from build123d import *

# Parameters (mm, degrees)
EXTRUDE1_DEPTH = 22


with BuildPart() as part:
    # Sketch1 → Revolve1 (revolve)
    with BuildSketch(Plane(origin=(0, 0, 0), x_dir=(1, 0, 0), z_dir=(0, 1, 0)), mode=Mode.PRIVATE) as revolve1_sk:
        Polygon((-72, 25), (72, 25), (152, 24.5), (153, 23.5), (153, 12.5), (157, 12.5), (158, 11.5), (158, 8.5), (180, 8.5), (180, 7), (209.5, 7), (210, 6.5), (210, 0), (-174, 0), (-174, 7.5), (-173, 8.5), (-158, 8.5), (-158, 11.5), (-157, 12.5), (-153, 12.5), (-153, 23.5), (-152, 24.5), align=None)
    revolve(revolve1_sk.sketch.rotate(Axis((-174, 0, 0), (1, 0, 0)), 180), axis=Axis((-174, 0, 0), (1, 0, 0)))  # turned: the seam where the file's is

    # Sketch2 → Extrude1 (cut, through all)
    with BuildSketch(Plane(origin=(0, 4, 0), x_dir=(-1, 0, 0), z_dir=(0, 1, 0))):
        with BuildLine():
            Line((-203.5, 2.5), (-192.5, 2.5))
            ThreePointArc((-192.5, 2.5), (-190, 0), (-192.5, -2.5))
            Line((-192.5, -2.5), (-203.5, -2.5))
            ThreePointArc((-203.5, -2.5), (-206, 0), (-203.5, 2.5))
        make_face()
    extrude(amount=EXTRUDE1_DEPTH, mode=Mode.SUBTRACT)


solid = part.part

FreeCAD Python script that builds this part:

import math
import FreeCAD as App
import Part
import Sketcher
Q = App.Units.Quantity

doc = App.newDocument("Part")
body = doc.addObject("PartDesign::Body", "Body")

# Sketch on XZ plane
sketch1 = doc.addObject("Sketcher::SketchObject", "Sketch")
body.addObject(sketch1)
sketch1.AttachmentSupport = (doc.XZ_Plane, [""])
sketch1.MapMode = "FlatFace"
sketch1.addGeometry(Part.LineSegment(App.Vector(72, -25, 0), App.Vector(-72, -25, 0)), False)
sketch1.addGeometry(Part.LineSegment(App.Vector(-72, -25, 0), App.Vector(-152, -24.5, 0)), False)
sketch1.addGeometry(Part.LineSegment(App.Vector(-152, -24.5, 0), App.Vector(-153, -23.5, 0)), False)
sketch1.addGeometry(Part.LineSegment(App.Vector(-153, -23.5, 0), App.Vector(-153, -12.5, 0)), False)
sketch1.addGeometry(Part.LineSegment(App.Vector(-153, -12.5, 0), App.Vector(-157, -12.5, 0)), False)
sketch1.addGeometry(Part.LineSegment(App.Vector(-157, -12.5, 0), App.Vector(-158, -11.5, 0)), False)
sketch1.addGeometry(Part.LineSegment(App.Vector(-158, -11.5, 0), App.Vector(-158, -8.5, 0)), False)
sketch1.addGeometry(Part.LineSegment(App.Vector(-158, -8.5, 0), App.Vector(-173, -8.5, 0)), False)
sketch1.addGeometry(Part.LineSegment(App.Vector(-173, -8.5, 0), App.Vector(-174, -7.5, 0)), False)
sketch1.addGeometry(Part.LineSegment(App.Vector(-174, -7.5, 0), App.Vector(-174, 0, 0)), False)
sketch1.addGeometry(Part.LineSegment(App.Vector(-174, 0, 0), App.Vector(210, 0, 0)), False)
sketch1.addGeometry(Part.LineSegment(App.Vector(210, 0, 0), App.Vector(210, -6.5, 0)), False)
sketch1.addGeometry(Part.LineSegment(App.Vector(210, -6.5, 0), App.Vector(209.5, -7, 0)), False)
sketch1.addGeometry(Part.LineSegment(App.Vector(209.5, -7, 0), App.Vector(180, -7, 0)), False)
sketch1.addGeometry(Part.LineSegment(App.Vector(180, -7, 0), App.Vector(180, -8.5, 0)), False)
sketch1.addGeometry(Part.LineSegment(App.Vector(180, -8.5, 0), App.Vector(158, -8.5, 0)), False)
sketch1.addGeometry(Part.LineSegment(App.Vector(158, -8.5, 0), App.Vector(158, -11.5, 0)), False)
sketch1.addGeometry(Part.LineSegment(App.Vector(158, -11.5, 0), App.Vector(157, -12.5, 0)), False)
sketch1.addGeometry(Part.LineSegment(App.Vector(157, -12.5, 0), App.Vector(153, -12.5, 0)), False)
sketch1.addGeometry(Part.LineSegment(App.Vector(153, -12.5, 0), App.Vector(153, -23.5, 0)), False)
sketch1.addGeometry(Part.LineSegment(App.Vector(153, -23.5, 0), App.Vector(152, -24.5, 0)), False)
sketch1.addGeometry(Part.LineSegment(App.Vector(152, -24.5, 0), App.Vector(72, -25, 0)), False)
sketch1.addConstraint(Sketcher.Constraint("Coincident", 0, 2, 1, 1))
sketch1.addConstraint(Sketcher.Constraint("Coincident", 1, 2, 2, 1))
sketch1.addConstraint(Sketcher.Constraint("Coincident", 2, 2, 3, 1))
sketch1.addConstraint(Sketcher.Constraint("Coincident", 3, 2, 4, 1))
sketch1.addConstraint(Sketcher.Constraint("Coincident", 4, 2, 5, 1))
sketch1.addConstraint(Sketcher.Constraint("Coincident", 5, 2, 6, 1))
sketch1.addConstraint(Sketcher.Constraint("Coincident", 6, 2, 7, 1))
sketch1.addConstraint(Sketcher.Constraint("Coincident", 7, 2, 8, 1))
sketch1.addConstraint(Sketcher.Constraint("Coincident", 8, 2, 9, 1))
sketch1.addConstraint(Sketcher.Constraint("Coincident", 9, 2, 10, 1))
sketch1.addConstraint(Sketcher.Constraint("Coincident", 10, 2, 11, 1))
sketch1.addConstraint(Sketcher.Constraint("Coincident", 11, 2, 12, 1))
sketch1.addConstraint(Sketcher.Constraint("Coincident", 12, 2, 13, 1))
sketch1.addConstraint(Sketcher.Constraint("Coincident", 13, 2, 14, 1))
sketch1.addConstraint(Sketcher.Constraint("Coincident", 14, 2, 15, 1))
sketch1.addConstraint(Sketcher.Constraint("Coincident", 15, 2, 16, 1))
sketch1.addConstraint(Sketcher.Constraint("Coincident", 16, 2, 17, 1))
sketch1.addConstraint(Sketcher.Constraint("Coincident", 17, 2, 18, 1))
sketch1.addConstraint(Sketcher.Constraint("Coincident", 18, 2, 19, 1))
sketch1.addConstraint(Sketcher.Constraint("Coincident", 19, 2, 20, 1))
sketch1.addConstraint(Sketcher.Constraint("Coincident", 20, 2, 21, 1))
sketch1.addConstraint(Sketcher.Constraint("Coincident", 21, 2, 0, 1))
sketch1.addConstraint(Sketcher.Constraint("Horizontal", 0))
sketch1.addConstraint(Sketcher.Constraint("Vertical", 3))
sketch1.addConstraint(Sketcher.Constraint("Horizontal", 4))
sketch1.addConstraint(Sketcher.Constraint("Vertical", 6))
sketch1.addConstraint(Sketcher.Constraint("Horizontal", 7))
sketch1.addConstraint(Sketcher.Constraint("Vertical", 9))
sketch1.addConstraint(Sketcher.Constraint("Horizontal", 10))
sketch1.addConstraint(Sketcher.Constraint("Vertical", 11))
sketch1.addConstraint(Sketcher.Constraint("Horizontal", 13))
sketch1.addConstraint(Sketcher.Constraint("Vertical", 14))
sketch1.addConstraint(Sketcher.Constraint("Horizontal", 15))
sketch1.addConstraint(Sketcher.Constraint("Vertical", 16))
sketch1.addConstraint(Sketcher.Constraint("Horizontal", 18))
sketch1.addConstraint(Sketcher.Constraint("Vertical", 19))
sketch1.addConstraint(Sketcher.Constraint("Symmetric", 6, 2, 15, 2, -2))
sketch1.addConstraint(Sketcher.Constraint("Symmetric", 4, 2, 17, 2, -2))
sketch1.addConstraint(Sketcher.Constraint("Symmetric", 2, 2, 19, 2, -2))
sketch1.addConstraint(Sketcher.Constraint("Symmetric", 1, 2, 20, 2, -2))
sketch1.addConstraint(Sketcher.Constraint("PointOnObject", 9, 2, -1))
sketch1.addConstraint(Sketcher.Constraint("Parallel", 2, 5))
sketch1.addConstraint(Sketcher.Constraint("Parallel", 5, 8))
sketch1.addConstraint(Sketcher.Constraint("Perpendicular", 8, 12))
sketch1.addConstraint(Sketcher.Constraint("Parallel", 12, 17))
sketch1.addConstraint(Sketcher.Constraint("Parallel", 17, 20))
sketch1.addConstraint(Sketcher.Constraint("Equal", 2, 5))
sketch1.addConstraint(Sketcher.Constraint("Equal", 5, 8))
sketch1.addConstraint(Sketcher.Constraint("Equal", 1, 21))
sketch1.addConstraint(Sketcher.Constraint("DistanceX", 0, 2, 0, 1, Q("144 mm")))
sketch1.addConstraint(Sketcher.Constraint("DistanceX", 4, 2, 4, 1, Q("4 mm")))
sketch1.addConstraint(Sketcher.Constraint("DistanceX", 7, 2, 7, 1, Q("15 mm")))
sketch1.addConstraint(Sketcher.Constraint("DistanceX", 10, 1, 10, 2, Q("384 mm")))
sketch1.addConstraint(Sketcher.Constraint("DistanceX", 15, 2, 15, 1, Q("22 mm")))
sketch1.addConstraint(Sketcher.Constraint("DistanceY", 3, 1, 3, 2, Q("11 mm")))
sketch1.addConstraint(Sketcher.Constraint("DistanceY", 6, 1, 6, 2, Q("3 mm")))
sketch1.addConstraint(Sketcher.Constraint("DistanceX", 13, 2, 13, 1, Q("29.5 mm")))
sketch1.addConstraint(Sketcher.Constraint("DistanceY", 9, 1, 9, 2, Q("7.5 mm")))
sketch1.addConstraint(Sketcher.Constraint("DistanceY", 11, 2, 11, 1, Q("6.5 mm")))
sketch1.addConstraint(Sketcher.Constraint("DistanceY", 14, 2, 14, 1, Q("1.5 mm")))
sketch1.addConstraint(Sketcher.Constraint("DistanceY", 0, 2, -1, 1, Q("25 mm")))
sketch1.addConstraint(Sketcher.Constraint("DistanceX", 1, 2, -1, 1, Q("152 mm")))
revolution = doc.addObject("PartDesign::Revolution", "Revolution")
body.addObject(revolution)
revolution.Profile = sketch1
revolution.ReferenceAxis = (sketch1, ["H_Axis"])
revolution.Angle = 360

# Sketch on XZ plane
sketch2 = doc.addObject("Sketcher::SketchObject", "Sketch001")
body.addObject(sketch2)
sketch2.AttachmentSupport = (doc.XZ_Plane, [""])
sketch2.MapMode = "FlatFace"
sketch2.AttachmentOffset = App.Placement(App.Vector(0, 0, -4), App.Rotation())
sketch2.addGeometry(Part.LineSegment(App.Vector(192.5, 2.5, 0), App.Vector(203.5, 2.5, 0)), False)
sketch2.addGeometry(Part.ArcOfCircle(Part.Circle(App.Vector(203.5, 0, 0), App.Vector(0, 0, 1), 2.5), math.radians(-90), math.radians(90)), False)
sketch2.addGeometry(Part.LineSegment(App.Vector(203.5, -2.5, 0), App.Vector(192.5, -2.5, 0)), False)
sketch2.addGeometry(Part.ArcOfCircle(Part.Circle(App.Vector(192.5, 0, 0), App.Vector(0, 0, 1), 2.5), math.radians(90), math.radians(270)), False)
sketch2.addConstraint(Sketcher.Constraint("Tangent", 0, 2, 1, 2))
sketch2.addConstraint(Sketcher.Constraint("Tangent", 1, 1, 2, 1))
sketch2.addConstraint(Sketcher.Constraint("Tangent", 2, 2, 3, 2))
sketch2.addConstraint(Sketcher.Constraint("Tangent", 3, 1, 0, 1))
sketch2.addConstraint(Sketcher.Constraint("Horizontal", 0))
sketch2.addConstraint(Sketcher.Constraint("Horizontal", 2))
sketch2.addConstraint(Sketcher.Constraint("PointOnObject", 1, 3, -1))
sketch2.addConstraint(Sketcher.Constraint("Radius", 1, Q("2.5 mm")))
sketch2.addConstraint(Sketcher.Constraint("DistanceX", 0, 1, 0, 2, Q("11 mm")))
sketch2.addConstraint(Sketcher.Constraint("DistanceX", -1, 1, 1, 3, Q("203.5 mm")))
pocket1 = doc.addObject("PartDesign::Pocket", "Pocket")
body.addObject(pocket1)
pocket1.Profile = sketch2
pocket1.Type = "ThroughAll"

doc.recompute()
